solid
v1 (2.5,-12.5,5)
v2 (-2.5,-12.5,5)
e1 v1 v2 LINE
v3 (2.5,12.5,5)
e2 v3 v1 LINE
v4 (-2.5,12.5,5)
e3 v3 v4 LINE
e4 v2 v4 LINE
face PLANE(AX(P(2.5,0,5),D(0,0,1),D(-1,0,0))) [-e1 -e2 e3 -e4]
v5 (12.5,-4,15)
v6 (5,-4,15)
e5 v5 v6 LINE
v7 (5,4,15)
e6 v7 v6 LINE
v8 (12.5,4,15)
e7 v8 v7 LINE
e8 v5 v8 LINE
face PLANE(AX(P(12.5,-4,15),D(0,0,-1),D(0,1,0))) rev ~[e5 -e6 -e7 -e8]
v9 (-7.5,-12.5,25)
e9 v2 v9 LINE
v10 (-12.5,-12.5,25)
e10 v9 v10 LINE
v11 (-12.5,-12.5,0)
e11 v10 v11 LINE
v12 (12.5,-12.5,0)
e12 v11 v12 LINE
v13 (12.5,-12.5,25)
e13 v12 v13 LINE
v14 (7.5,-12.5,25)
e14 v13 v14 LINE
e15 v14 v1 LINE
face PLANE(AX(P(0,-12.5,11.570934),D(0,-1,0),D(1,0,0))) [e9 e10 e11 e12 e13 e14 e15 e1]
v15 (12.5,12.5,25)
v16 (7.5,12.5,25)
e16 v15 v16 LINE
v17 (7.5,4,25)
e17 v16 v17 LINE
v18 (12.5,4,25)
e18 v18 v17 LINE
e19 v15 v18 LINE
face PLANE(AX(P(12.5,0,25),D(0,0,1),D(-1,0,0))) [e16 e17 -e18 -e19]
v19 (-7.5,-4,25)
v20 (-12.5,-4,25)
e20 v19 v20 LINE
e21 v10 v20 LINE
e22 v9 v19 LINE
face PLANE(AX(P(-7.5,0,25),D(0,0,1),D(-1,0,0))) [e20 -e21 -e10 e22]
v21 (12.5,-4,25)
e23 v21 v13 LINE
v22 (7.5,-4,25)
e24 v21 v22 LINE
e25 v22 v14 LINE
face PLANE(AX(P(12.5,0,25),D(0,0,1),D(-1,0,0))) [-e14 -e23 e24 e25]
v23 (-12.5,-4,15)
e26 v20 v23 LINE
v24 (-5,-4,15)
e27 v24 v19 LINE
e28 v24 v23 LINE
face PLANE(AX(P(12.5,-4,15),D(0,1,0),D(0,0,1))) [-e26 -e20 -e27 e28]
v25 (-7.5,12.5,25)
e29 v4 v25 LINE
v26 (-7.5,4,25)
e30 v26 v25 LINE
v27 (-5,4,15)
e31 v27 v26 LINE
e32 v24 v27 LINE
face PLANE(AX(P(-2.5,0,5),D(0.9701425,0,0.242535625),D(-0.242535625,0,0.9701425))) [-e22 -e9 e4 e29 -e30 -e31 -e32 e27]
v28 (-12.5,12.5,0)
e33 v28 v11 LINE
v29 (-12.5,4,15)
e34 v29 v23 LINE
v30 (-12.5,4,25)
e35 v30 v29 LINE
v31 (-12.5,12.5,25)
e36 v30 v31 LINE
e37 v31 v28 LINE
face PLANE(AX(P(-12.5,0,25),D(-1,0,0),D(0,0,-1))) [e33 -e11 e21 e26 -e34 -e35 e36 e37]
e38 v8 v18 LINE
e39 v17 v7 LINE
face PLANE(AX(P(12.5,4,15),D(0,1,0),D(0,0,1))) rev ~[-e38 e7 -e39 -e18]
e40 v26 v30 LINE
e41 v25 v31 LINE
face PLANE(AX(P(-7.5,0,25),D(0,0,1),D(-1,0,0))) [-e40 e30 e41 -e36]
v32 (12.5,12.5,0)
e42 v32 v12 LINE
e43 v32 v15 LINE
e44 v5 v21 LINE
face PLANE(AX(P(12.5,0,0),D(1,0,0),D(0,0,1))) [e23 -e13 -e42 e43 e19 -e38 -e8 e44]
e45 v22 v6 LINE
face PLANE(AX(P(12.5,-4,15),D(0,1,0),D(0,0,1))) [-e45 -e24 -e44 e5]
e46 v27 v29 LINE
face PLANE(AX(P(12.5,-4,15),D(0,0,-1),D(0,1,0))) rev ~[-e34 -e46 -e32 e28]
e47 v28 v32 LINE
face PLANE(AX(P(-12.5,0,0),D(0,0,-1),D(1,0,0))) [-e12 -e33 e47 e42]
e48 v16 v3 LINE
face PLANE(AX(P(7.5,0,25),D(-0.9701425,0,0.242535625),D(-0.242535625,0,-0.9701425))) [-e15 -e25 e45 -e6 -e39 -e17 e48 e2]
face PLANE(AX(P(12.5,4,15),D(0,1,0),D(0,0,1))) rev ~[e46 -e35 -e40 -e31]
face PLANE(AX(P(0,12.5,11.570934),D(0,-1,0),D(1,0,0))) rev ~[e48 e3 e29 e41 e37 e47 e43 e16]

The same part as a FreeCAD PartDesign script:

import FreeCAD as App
import Part
import Sketcher
from FreeCAD import Vector
Q = App.Units.Quantity

doc = App.newDocument("Part")
body = doc.addObject("PartDesign::Body", "Body")

# Sketch on XZ plane
sketch1 = body.newObject("Sketcher::SketchObject", "Sketch")
sketch1.AttachmentSupport = (doc.getObject("XZ_Plane"), [""])
sketch1.MapMode = "FlatFace"
sketch1.addGeometry(Part.LineSegment(Vector(-12, 25, 0), Vector(-12, 0, 0)), False)
sketch1.addGeometry(Part.LineSegment(Vector(-12, 0, 0), Vector(12, 0, 0)), False)
sketch1.addGeometry(Part.LineSegment(Vector(12, 0, 0), Vector(12, 25, 0)), False)
sketch1.addGeometry(Part.LineSegment(Vector(12, 25, 0), Vector(8, 25, 0)), False)
sketch1.addGeometry(Part.LineSegment(Vector(8, 25, 0), Vector(2, 5, 0)), False)
sketch1.addGeometry(Part.LineSegment(Vector(2, 5, 0), Vector(-2, 5, 0)), False)
sketch1.addGeometry(Part.LineSegment(Vector(-2, 5, 0), Vector(-8, 25, 0)), False)
sketch1.addGeometry(Part.LineSegment(Vector(-8, 25, 0), Vector(-12, 25, 0)), False)
sketch1.addConstraint(Sketcher.Constraint("Coincident", 0, 2, 1, 1))
sketch1.addConstraint(Sketcher.Constraint("Coincident", 1, 2, 2, 1))
sketch1.addConstraint(Sketcher.Constraint("Coincident", 2, 2, 3, 1))
sketch1.addConstraint(Sketcher.Constraint("Coincident", 3, 2, 4, 1))
sketch1.addConstraint(Sketcher.Constraint("Coincident", 4, 2, 5, 1))
sketch1.addConstraint(Sketcher.Constraint("Coincident", 5, 2, 6, 1))
sketch1.addConstraint(Sketcher.Constraint("Coincident", 6, 2, 7, 1))
sketch1.addConstraint(Sketcher.Constraint("Coincident", 7, 2, 0, 1))
sketch1.addConstraint(Sketcher.Constraint("Vertical", 0))
sketch1.addConstraint(Sketcher.Constraint("Horizontal", 1))
sketch1.addConstraint(Sketcher.Constraint("Vertical", 2))
sketch1.addConstraint(Sketcher.Constraint("Horizontal", 3))
sketch1.addConstraint(Sketcher.Constraint("Horizontal", 5))
sketch1.addConstraint(Sketcher.Constraint("Horizontal", 7))
sketch1.addConstraint(Sketcher.Constraint("Symmetric", 0, 2, 1, 2, -1, 1))
sketch1.addConstraint(Sketcher.Constraint("Symmetric", 3, 2, 6, 2, -2))
sketch1.addConstraint(Sketcher.Constraint("Equal", 3, 5))
sketch1.addConstraint(Sketcher.Constraint("Equal", 1, 0))
sketch1.addConstraint(Sketcher.Constraint("Equal", 4, 6))
sketch1.addConstraint(Sketcher.Constraint("DistanceX", 1, 1, 1, 2, Q("25 mm")))
sketch1.addConstraint(Sketcher.Constraint("DistanceX", 3, 2, 3, 1, Q("5 mm")))
sketch1.addConstraint(Sketcher.Constraint("DistanceY", -1, 1, 4, 2, Q("5 mm")))
pad1 = body.newObject("PartDesign::Pad", "Pad")
pad1.Profile = sketch1
pad1.Length = 25
pad1.Midplane = True

# Sketch on YZ plane
sketch2 = body.newObject("Sketcher::SketchObject", "Sketch001")
sketch2.AttachmentSupport = (doc.getObject("YZ_Plane"), [""])
sketch2.MapMode = "FlatFace"
sketch2.AttachmentOffset = App.Placement(Vector(0, 0, 12.5), App.Rotation())
sketch2.addGeometry(Part.LineSegment(Vector(-4, 25, 0), Vector(-4, 15, 0)), False)
sketch2.addGeometry(Part.LineSegment(Vector(-4, 15, 0), Vector(4, 15, 0)), False)
sketch2.addGeometry(Part.LineSegment(Vector(4, 15, 0), Vector(4, 25, 0)), False)
sketch2.addGeometry(Part.LineSegment(Vector(4, 25, 0), Vector(-4, 25, 0)), False)
sketch2.addConstraint(Sketcher.Constraint("Coincident", 0, 2, 1, 1))
sketch2.addConstraint(Sketcher.Constraint("Coincident", 1, 2, 2, 1))
sketch2.addConstraint(Sketcher.Constraint("Coincident", 2, 2, 3, 1))
sketch2.addConstraint(Sketcher.Constraint("Coincident", 3, 2, 0, 1))
sketch2.addConstraint(Sketcher.Constraint("Vertical", 0))
sketch2.addConstraint(Sketcher.Constraint("Horizontal", 1))
sketch2.addConstraint(Sketcher.Constraint("Vertical", 2))
sketch2.addConstraint(Sketcher.Constraint("Horizontal", 3))
sketch2.addConstraint(Sketcher.Constraint("DistanceX", 1, 1, 1, 2, Q("8 mm")))
sketch2.addConstraint(Sketcher.Constraint("DistanceY", 0, 2, 0, 1, Q("10 mm")))
sketch2.addConstraint(Sketcher.Constraint("DistanceX", 0, 2, -1, 1, Q("4 mm")))
sketch2.addConstraint(Sketcher.Constraint("DistanceY", -1, 1, 0, 2, Q("15 mm")))
pocket1 = body.newObject("PartDesign::Pocket", "Pocket")
pocket1.Profile = sketch2
pocket1.Type = "ThroughAll"

doc.recompute()
